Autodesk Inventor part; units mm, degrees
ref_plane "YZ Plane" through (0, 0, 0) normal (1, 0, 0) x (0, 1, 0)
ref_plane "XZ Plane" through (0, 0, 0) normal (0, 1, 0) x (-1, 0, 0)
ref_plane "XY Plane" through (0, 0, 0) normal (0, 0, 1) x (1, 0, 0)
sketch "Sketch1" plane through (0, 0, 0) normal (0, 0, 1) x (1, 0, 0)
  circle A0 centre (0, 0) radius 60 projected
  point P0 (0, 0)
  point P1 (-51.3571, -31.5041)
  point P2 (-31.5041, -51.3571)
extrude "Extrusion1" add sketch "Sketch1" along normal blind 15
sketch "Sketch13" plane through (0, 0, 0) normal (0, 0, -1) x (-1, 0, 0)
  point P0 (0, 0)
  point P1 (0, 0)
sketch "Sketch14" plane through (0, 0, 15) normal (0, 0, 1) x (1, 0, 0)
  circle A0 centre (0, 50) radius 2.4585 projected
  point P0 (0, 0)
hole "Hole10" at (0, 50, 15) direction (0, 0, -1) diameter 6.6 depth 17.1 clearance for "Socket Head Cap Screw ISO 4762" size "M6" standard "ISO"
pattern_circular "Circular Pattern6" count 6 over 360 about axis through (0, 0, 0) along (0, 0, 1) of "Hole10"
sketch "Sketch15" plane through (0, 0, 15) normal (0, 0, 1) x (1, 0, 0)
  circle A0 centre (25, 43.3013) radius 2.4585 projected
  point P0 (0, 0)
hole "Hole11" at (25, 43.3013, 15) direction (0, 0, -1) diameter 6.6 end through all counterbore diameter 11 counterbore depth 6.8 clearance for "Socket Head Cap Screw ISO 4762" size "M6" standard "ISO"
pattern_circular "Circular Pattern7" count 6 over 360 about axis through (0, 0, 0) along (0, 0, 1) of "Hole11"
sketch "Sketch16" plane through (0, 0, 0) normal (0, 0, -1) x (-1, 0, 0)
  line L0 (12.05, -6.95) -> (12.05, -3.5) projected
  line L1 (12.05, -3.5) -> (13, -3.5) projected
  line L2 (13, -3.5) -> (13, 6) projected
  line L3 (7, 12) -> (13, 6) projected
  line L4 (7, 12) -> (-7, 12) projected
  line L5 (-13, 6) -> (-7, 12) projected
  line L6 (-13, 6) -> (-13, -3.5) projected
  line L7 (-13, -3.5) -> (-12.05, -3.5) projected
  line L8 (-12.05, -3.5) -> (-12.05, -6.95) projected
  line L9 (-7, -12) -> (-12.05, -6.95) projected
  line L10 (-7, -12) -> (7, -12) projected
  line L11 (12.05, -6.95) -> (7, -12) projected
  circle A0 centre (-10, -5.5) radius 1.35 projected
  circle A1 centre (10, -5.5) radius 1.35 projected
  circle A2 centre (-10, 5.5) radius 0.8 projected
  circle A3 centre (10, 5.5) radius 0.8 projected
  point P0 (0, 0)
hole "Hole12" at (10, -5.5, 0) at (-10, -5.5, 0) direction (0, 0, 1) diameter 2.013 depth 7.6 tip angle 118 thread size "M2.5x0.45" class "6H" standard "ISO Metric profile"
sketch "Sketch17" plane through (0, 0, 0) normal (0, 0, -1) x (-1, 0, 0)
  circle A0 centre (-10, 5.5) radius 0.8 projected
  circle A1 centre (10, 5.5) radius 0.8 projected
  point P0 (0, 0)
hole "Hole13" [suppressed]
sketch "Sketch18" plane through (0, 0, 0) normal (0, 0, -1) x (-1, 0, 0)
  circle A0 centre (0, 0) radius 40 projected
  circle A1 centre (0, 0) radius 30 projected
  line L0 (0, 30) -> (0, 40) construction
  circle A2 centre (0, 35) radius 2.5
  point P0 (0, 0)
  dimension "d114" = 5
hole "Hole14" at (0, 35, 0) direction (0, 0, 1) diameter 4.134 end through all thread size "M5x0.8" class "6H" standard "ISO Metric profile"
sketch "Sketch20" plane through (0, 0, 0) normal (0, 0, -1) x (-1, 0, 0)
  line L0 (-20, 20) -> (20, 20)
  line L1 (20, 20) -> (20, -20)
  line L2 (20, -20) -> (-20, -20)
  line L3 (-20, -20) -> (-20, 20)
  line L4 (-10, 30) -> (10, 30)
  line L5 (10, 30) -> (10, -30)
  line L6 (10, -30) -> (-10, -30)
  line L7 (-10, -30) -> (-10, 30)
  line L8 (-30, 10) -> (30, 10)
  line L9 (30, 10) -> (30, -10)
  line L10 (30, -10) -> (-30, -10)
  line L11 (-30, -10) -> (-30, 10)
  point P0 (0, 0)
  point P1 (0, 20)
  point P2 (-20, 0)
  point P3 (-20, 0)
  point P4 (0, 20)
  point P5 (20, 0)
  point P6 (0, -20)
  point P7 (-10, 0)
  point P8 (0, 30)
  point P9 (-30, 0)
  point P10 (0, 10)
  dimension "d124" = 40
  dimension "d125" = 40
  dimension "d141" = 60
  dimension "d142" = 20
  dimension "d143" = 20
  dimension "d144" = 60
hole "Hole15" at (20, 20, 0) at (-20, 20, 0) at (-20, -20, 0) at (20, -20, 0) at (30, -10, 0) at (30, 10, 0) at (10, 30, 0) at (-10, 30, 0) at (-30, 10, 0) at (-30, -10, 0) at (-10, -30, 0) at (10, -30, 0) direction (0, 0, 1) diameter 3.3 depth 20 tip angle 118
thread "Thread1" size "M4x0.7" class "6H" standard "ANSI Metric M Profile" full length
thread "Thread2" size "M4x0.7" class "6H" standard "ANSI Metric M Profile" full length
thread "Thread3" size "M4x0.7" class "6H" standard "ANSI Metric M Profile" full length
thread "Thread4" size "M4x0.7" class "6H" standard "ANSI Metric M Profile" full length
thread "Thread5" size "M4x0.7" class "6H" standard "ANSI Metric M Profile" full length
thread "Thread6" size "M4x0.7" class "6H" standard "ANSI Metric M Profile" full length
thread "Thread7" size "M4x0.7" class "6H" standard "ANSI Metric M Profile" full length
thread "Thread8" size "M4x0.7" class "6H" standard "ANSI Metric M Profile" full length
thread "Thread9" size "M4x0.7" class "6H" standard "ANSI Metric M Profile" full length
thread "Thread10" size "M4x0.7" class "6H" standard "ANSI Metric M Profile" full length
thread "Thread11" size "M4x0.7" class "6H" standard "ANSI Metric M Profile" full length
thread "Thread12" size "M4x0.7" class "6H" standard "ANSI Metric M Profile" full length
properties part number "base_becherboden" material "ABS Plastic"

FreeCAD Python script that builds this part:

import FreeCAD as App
import Part
import Sketcher

V = App.Vector
Q = App.Units.Quantity

doc = App.newDocument("Part")
body = doc.addObject("PartDesign::Body", "Body")

sketch1 = body.newObject("Sketcher::SketchObject", "Sketch")
sketch1.AttachmentSupport = (doc.getObject("XY_Plane"), [""])
sketch1.MapMode = "FlatFace"
sketch1.addGeometry(Part.Circle(V(0, 0, 0), V(0, 0, 1), 60), False)
sketch1.addConstraint([
    Sketcher.Constraint("Coincident", 0, 3, -1, 1),
    Sketcher.Constraint("Diameter", 0, Q("120 mm")),
])
pad1 = body.newObject("PartDesign::Pad", "Pad")
pad1.Profile = sketch1
pad1.Length = 15

sketch2 = body.newObject("Sketcher::SketchObject", "Sketch001")
sketch2.AttachmentSupport = (doc.getObject("XY_Plane"), [""])
sketch2.MapMode = "FlatFace"
sketch2.AttachmentOffset = App.Placement(V(0, 0, 15), App.Rotation())
sketch2.addGeometry(Part.Circle(V(0, 50, 0), V(0, 0, 1), 3.3), False)
sketch2.addConstraint([
    Sketcher.Constraint("PointOnObject", 0, 3, -2),
    Sketcher.Constraint("Diameter", 0, Q("6.6 mm")),
    Sketcher.Constraint("DistanceY", -1, 1, 0, 3, Q("50 mm")),
])
doc.recompute()
hole = body.newObject("PartDesign::Hole", "Hole")
hole.Profile = sketch2
hole.ThreadType = "None"
hole.Diameter = 6.6
hole.DepthType = "Dimension"
hole.Depth = 17.1
hole.DrillPoint = "Flat"
doc.recompute()

polarpattern = body.newObject("PartDesign::PolarPattern", "PolarPattern")
polarpattern.Originals = [hole]
polarpattern.Axis = (doc.getObject("Z_Axis"), [""])
polarpattern.Angle = 360
polarpattern.Occurrences = 6
body.Tip = polarpattern

sketch3 = body.newObject("Sketcher::SketchObject", "Sketch002")
sketch3.AttachmentSupport = (doc.getObject("XY_Plane"), [""])
sketch3.MapMode = "FlatFace"
sketch3.AttachmentOffset = App.Placement(V(0, 0, 15), App.Rotation())
sketch3.addGeometry(Part.Circle(V(25, 43.3013, 0), V(0, 0, 1), 3.3), False)
sketch3.addConstraint([
    Sketcher.Constraint("Diameter", 0, Q("6.6 mm")),
    Sketcher.Constraint("DistanceX", -1, 1, 0, 3, Q("25 mm")),
    Sketcher.Constraint("DistanceY", -1, 1, 0, 3, Q("43.3013 mm")),
])
doc.recompute()
hole2 = body.newObject("PartDesign::Hole", "Hole001")
hole2.Profile = sketch3
hole2.ThreadType = "None"
hole2.Diameter = 6.6
hole2.DepthType = "ThroughAll"
hole2.HoleCutType = "Counterbore"
hole2.HoleCutDiameter = 11
hole2.HoleCutDepth = 6.8
doc.recompute()

polarpattern2 = body.newObject("PartDesign::PolarPattern", "PolarPattern001")
polarpattern2.Originals = [hole2]
polarpattern2.Axis = (doc.getObject("Z_Axis"), [""])
polarpattern2.Angle = 360
polarpattern2.Occurrences = 6
body.Tip = polarpattern2

sketch4 = body.newObject("Sketcher::SketchObject", "Sketch003")
sketch4.AttachmentSupport = (doc.getObject("XY_Plane"), [""])
sketch4.MapMode = "FlatFace"
sketch4.addGeometry([
    Part.Circle(V(10, -5.5, 0), V(0, 0, 1), 1.0065),
    Part.Circle(V(-10, -5.5, 0), V(0, 0, 1), 1.0065),
], False)
sketch4.addConstraint([
    Sketcher.Constraint("Equal", 0, 1),
    Sketcher.Constraint("Symmetric", 0, 3, 1, 3, -2),
    Sketcher.Constraint("Diameter", 0, Q("2.013 mm")),
    Sketcher.Constraint("DistanceX", -1, 1, 0, 3, Q("10 mm")),
    Sketcher.Constraint("DistanceY", 0, 3, -1, 1, Q("5.5 mm")),
])
doc.recompute()
hole3 = body.newObject("PartDesign::Hole", "Hole002")
hole3.Profile = sketch4
hole3.ThreadType = "None"
hole3.Diameter = 2.013
hole3.DepthType = "Dimension"
hole3.Depth = 7.6
hole3.DrillPoint = "Angled"
hole3.DrillPointAngle = 118
hole3.Reversed = True

sketch5 = body.newObject("Sketcher::SketchObject", "Sketch004")
sketch5.AttachmentSupport = (doc.getObject("XY_Plane"), [""])
sketch5.MapMode = "FlatFace"
sketch5.addGeometry(Part.Circle(V(0, 35, 0), V(0, 0, 1), 2.067), False)
sketch5.addConstraint([
    Sketcher.Constraint("PointOnObject", 0, 3, -2),
    Sketcher.Constraint("Diameter", 0, Q("4.134 mm")),
    Sketcher.Constraint("DistanceY", -1, 1, 0, 3, Q("35 mm")),
])
doc.recompute()
hole4 = body.newObject("PartDesign::Hole", "Hole003")
hole4.Profile = sketch5
hole4.ThreadType = "None"
hole4.Diameter = 4.134
hole4.DepthType = "ThroughAll"
hole4.Reversed = True

sketch6 = body.newObject("Sketcher::SketchObject", "Sketch005")
sketch6.AttachmentSupport = (doc.getObject("XY_Plane"), [""])
sketch6.MapMode = "FlatFace"
sketch6.addGeometry([
    Part.Circle(V(20, 20, 0), V(0, 0, 1), 1.65),
    Part.Circle(V(-20, 20, 0), V(0, 0, 1), 1.65),
    Part.Circle(V(-20, -20, 0), V(0, 0, 1), 1.65),
    Part.Circle(V(20, -20, 0), V(0, 0, 1), 1.65),
    Part.Circle(V(30, -10, 0), V(0, 0, 1), 1.65),
    Part.Circle(V(30, 10, 0), V(0, 0, 1), 1.65),
    Part.Circle(V(10, 30, 0), V(0, 0, 1), 1.65),
    Part.Circle(V(-10, 30, 0), V(0, 0, 1), 1.65),
    Part.Circle(V(-30, 10, 0), V(0, 0, 1), 1.65),
    Part.Circle(V(-30, -10, 0), V(0, 0, 1), 1.65),
    Part.Circle(V(-10, -30, 0), V(0, 0, 1), 1.65),
    Part.Circle(V(10, -30, 0), V(0, 0, 1), 1.65),
], False)
sketch6.addConstraint([
    Sketcher.Constraint("Equal", 0, 1),
    Sketcher.Constraint("Equal", 1, 2),
    Sketcher.Constraint("Equal", 2, 3),
    Sketcher.Constraint("Equal", 3, 4),
    Sketcher.Constraint("Equal", 4, 5),
    Sketcher.Constraint("Equal", 5, 6),
    Sketcher.Constraint("Equal", 6, 7),
    Sketcher.Constraint("Equal", 7, 8),
    Sketcher.Constraint("Equal", 8, 9),
    Sketcher.Constraint("Equal", 9, 10),
    Sketcher.Constraint("Equal", 10, 11),
    Sketcher.Constraint("Symmetric", 0, 3, 2, 3, -1, 1),
    Sketcher.Constraint("Symmetric", 1, 3, 3, 3, -1, 1),
    Sketcher.Constraint("Symmetric", 4, 3, 8, 3, -1, 1),
    Sketcher.Constraint("Symmetric", 5, 3, 9, 3, -1, 1),
    Sketcher.Constraint("Symmetric", 6, 3, 10, 3, -1, 1),
    Sketcher.Constraint("Symmetric", 7, 3, 11, 3, -1, 1),
    Sketcher.Constraint("Symmetric", 0, 3, 1, 3, -2),
    Sketcher.Constraint("Symmetric", 6, 3, 7, 3, -2),
    Sketcher.Constraint("Symmetric", 5, 3, 8, 3, -2),
    Sketcher.Constraint("Diameter", 0, Q("3.3 mm")),
    Sketcher.Constraint("DistanceX", -1, 1, 0, 3, Q("20 mm")),
    Sketcher.Constraint("DistanceY", -1, 1, 0, 3, Q("20 mm")),
    Sketcher.Constraint("DistanceX", -1, 1, 4, 3, Q("30 mm")),
    Sketcher.Constraint("DistanceY", 4, 3, -1, 1, Q("10 mm")),
    Sketcher.Constraint("DistanceX", -1, 1, 6, 3, Q("10 mm")),
    Sketcher.Constraint("DistanceY", -1, 1, 6, 3, Q("30 mm")),
])
doc.recompute()
hole5 = body.newObject("PartDesign::Hole", "Hole004")
hole5.Profile = sketch6
hole5.ThreadType = "None"
hole5.Diameter = 3.3
hole5.DepthType = "Dimension"
hole5.Depth = 20
hole5.DrillPoint = "Angled"
hole5.DrillPointAngle = 118
hole5.Reversed = True

doc.recompute()
